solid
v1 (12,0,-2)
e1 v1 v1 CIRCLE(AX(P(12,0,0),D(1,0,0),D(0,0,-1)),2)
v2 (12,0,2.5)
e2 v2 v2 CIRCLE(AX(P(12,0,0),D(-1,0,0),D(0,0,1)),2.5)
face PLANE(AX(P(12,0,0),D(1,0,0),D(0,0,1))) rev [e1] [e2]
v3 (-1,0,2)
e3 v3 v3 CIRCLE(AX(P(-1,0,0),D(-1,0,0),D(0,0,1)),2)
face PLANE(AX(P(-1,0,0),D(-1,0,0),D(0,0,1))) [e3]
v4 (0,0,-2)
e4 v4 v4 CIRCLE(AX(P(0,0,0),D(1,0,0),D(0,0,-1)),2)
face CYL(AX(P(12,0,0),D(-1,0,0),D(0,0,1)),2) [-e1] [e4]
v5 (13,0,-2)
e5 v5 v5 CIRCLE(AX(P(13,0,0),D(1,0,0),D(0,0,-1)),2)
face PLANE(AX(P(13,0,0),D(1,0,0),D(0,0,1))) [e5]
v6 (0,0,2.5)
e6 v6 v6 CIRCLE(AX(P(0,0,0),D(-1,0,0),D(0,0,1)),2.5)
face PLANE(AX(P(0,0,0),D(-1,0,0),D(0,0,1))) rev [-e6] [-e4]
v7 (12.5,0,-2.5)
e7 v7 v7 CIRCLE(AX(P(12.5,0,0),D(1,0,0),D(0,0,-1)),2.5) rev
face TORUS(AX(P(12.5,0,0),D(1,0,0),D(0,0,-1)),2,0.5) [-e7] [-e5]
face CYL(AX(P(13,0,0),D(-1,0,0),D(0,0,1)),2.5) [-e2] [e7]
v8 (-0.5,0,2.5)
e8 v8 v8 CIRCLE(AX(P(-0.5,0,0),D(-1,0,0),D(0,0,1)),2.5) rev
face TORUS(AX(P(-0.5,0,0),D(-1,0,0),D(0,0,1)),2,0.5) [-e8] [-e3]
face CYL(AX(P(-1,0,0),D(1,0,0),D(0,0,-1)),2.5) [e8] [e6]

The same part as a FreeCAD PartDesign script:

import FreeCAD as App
import Part
import Sketcher

V = App.Vector
Q = App.Units.Quantity


def edges_at(feature, points):
    """Names of the edges that pass closest to the given points."""
    edges = feature.Shape.Edges
    near = lambda p: min(range(len(edges)), key=lambda i: edges[i].distToShape(Part.Vertex(*p))[0])
    return sorted({f"Edge{near(p) + 1}" for p in points})

doc = App.newDocument("Part")
body = doc.addObject("PartDesign::Body", "Body")

sketch1 = body.newObject("Sketcher::SketchObject", "Sketch")
sketch1.AttachmentSupport = (doc.getObject("YZ_Plane"), [""])
sketch1.MapMode = "FlatFace"
sketch1.addGeometry(Part.Circle(V(0, 0, 0), V(0, 0, 1), 2), False)
sketch1.addConstraint(Sketcher.Constraint("Coincident", 0, 3, -1, 1))
sketch1.addConstraint(Sketcher.Constraint("Diameter", 0, Q("4 mm")))
pad1 = body.newObject("PartDesign::Pad", "Pad")
pad1.Profile = sketch1
pad1.Length = 12

sketch2 = body.newObject("Sketcher::SketchObject", "Sketch001")
sketch2.AttachmentSupport = (doc.getObject("YZ_Plane"), [""])
sketch2.MapMode = "FlatFace"
sketch2.addGeometry(Part.Circle(V(0, 0, 0), V(0, 0, 1), 2.5), False)
sketch2.addConstraint(Sketcher.Constraint("Coincident", 0, 3, -1, 1))
sketch2.addConstraint(Sketcher.Constraint("Diameter", 0, Q("5 mm")))
pad2 = body.newObject("PartDesign::Pad", "Pad001")
pad2.Profile = sketch2
pad2.Length = 1
pad2.Reversed = True
doc.recompute()

fillet = body.newObject("PartDesign::Fillet", "Fillet")
fillet.Base = (pad2, edges_at(pad2, [(-1, 0, -2.5)]))
fillet.Radius = 0.5
doc.recompute()

datumplane = body.newObject("PartDesign::Plane", "DatumPlane")
datumplane.AttachmentSupport = (doc.getObject("YZ_Plane"), [""])
datumplane.MapMode = "FlatFace"
datumplane.AttachmentOffset = App.Placement(V(0, 0, 6), App.Rotation())
mirrored = body.newObject("PartDesign::Mirrored", "Mirrored")
mirrored.Originals = [pad2]
mirrored.MirrorPlane = (datumplane, [""])
body.Tip = mirrored
doc.recompute()

fillet2 = body.newObject("PartDesign::Fillet", "Fillet001")
fillet2.Base = (mirrored, edges_at(mirrored, [(13, 0, -2.5)]))
fillet2.Radius = 0.5

doc.recompute()
